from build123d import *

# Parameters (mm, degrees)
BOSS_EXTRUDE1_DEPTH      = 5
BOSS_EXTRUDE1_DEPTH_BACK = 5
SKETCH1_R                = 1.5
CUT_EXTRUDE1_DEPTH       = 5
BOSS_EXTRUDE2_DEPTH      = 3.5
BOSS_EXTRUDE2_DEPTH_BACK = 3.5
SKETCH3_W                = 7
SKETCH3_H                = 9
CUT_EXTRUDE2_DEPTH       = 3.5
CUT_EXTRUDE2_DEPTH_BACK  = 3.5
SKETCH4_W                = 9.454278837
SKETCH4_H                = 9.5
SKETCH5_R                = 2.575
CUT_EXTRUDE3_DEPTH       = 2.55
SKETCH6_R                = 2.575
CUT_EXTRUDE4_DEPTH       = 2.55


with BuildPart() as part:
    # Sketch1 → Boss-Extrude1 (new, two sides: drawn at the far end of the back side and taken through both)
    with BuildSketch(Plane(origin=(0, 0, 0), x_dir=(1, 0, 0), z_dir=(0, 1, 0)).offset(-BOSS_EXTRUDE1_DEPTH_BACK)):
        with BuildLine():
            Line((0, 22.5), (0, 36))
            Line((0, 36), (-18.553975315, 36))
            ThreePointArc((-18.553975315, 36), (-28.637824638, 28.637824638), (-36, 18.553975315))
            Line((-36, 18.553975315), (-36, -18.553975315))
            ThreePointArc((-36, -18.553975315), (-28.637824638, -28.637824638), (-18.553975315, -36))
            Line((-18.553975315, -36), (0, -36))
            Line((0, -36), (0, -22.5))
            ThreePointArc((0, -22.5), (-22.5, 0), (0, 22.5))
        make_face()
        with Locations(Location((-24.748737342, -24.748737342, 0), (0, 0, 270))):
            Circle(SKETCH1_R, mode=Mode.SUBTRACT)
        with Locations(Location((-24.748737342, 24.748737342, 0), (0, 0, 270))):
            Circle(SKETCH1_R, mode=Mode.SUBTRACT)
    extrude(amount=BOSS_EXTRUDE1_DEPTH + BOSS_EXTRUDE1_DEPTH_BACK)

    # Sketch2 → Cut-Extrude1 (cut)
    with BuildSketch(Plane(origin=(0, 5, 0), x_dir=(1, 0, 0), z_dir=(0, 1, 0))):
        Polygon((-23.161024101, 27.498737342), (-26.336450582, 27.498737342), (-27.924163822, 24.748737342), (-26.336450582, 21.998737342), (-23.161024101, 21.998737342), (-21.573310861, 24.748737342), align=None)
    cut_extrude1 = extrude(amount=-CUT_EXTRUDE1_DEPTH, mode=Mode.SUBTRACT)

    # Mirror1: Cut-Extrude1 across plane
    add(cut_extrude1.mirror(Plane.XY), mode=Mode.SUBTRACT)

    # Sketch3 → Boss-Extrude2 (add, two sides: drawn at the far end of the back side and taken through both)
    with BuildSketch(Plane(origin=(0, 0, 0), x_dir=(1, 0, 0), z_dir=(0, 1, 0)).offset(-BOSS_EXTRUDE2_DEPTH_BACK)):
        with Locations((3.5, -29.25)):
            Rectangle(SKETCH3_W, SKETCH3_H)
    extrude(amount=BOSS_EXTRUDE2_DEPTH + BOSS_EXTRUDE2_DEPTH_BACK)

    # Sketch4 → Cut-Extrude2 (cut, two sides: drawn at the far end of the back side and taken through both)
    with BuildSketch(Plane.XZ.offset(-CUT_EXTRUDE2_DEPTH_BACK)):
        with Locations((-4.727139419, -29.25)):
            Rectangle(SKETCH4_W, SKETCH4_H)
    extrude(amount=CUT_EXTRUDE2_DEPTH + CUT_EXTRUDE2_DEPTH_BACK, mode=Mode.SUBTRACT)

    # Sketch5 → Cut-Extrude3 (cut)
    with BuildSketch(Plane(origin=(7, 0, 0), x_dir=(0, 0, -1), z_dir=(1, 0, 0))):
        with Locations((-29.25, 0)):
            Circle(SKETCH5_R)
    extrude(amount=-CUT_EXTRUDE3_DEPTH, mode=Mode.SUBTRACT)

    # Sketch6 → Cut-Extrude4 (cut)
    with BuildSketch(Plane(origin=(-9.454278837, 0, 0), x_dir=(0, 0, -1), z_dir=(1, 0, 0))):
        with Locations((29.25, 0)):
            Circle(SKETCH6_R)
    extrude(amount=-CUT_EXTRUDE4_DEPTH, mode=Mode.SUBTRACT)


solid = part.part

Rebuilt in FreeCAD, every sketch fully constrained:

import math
import FreeCAD as App
import Part
import Sketcher
from FreeCAD import Vector
Q = App.Units.Quantity

doc = App.newDocument("Part")
body = doc.addObject("PartDesign::Body", "Body")

sketch1 = body.newObject("Sketcher::SketchObject", "Sketch")
sketch1.AttachmentSupport = (doc.getObject("XZ_Plane"), [""])
sketch1.MapMode = "FlatFace"
sketch1.addGeometry([
    Part.LineSegment(Vector(0, -22.5, 0), Vector(0, -36, 0)),
    Part.LineSegment(Vector(0, -36, 0), Vector(-18.6, -36, 0)),
    Part.ArcOfCircle(Part.Circle(Vector(0, 0, 0), Vector(0, 0, 1), 40.5), math.radians(-153), math.radians(-117)),
    Part.LineSegment(Vector(-36, -18.6, 0), Vector(-36, 18.6, 0)),
    Part.ArcOfCircle(Part.Circle(Vector(0, 0, 0), Vector(0, 0, 1), 40.5), math.radians(117), math.radians(153)),
    Part.LineSegment(Vector(-18.6, 36, 0), Vector(0, 36, 0)),
    Part.LineSegment(Vector(0, 36, 0), Vector(0, 22.5, 0)),
    Part.ArcOfCircle(Part.Circle(Vector(0, 0, 0), Vector(0, 0, 1), 22.5), math.radians(90), math.radians(270)),
    Part.Circle(Vector(-24.7, 24.7, 0), Vector(0, 0, 1), 1.5),
    Part.Circle(Vector(-24.7, -24.7, 0), Vector(0, 0, 1), 1.5),
], False)
sketch1.addConstraint([
    Sketcher.Constraint("Coincident", 0, 2, 1, 1),
    Sketcher.Constraint("Coincident", 1, 2, 2, 2),
    Sketcher.Constraint("Coincident", 2, 1, 3, 1),
    Sketcher.Constraint("Coincident", 3, 2, 4, 2),
    Sketcher.Constraint("Coincident", 4, 1, 5, 1),
    Sketcher.Constraint("Coincident", 5, 2, 6, 1),
    Sketcher.Constraint("Coincident", 6, 2, 7, 1),
    Sketcher.Constraint("Coincident", 7, 2, 0, 1),
    Sketcher.Constraint("Vertical", 0),
    Sketcher.Constraint("Horizontal", 1),
    Sketcher.Constraint("Vertical", 3),
    Sketcher.Constraint("Horizontal", 5),
    Sketcher.Constraint("Vertical", 6),
    Sketcher.Constraint("Coincident", 2, 3, -1, 1),
    Sketcher.Constraint("Coincident", 4, 3, -1, 1),
    Sketcher.Constraint("Coincident", 7, 3, -1, 1),
    Sketcher.Constraint("Equal", 2, 4),
    Sketcher.Constraint("Equal", 8, 9),
    Sketcher.Constraint("Symmetric", 0, 2, 5, 2, -1, 1),
    Sketcher.Constraint("Symmetric", 8, 3, 9, 3, -1),
    Sketcher.Constraint("PointOnObject", 0, 2, -2),
    Sketcher.Constraint("Diameter", 8, Q("3 mm")),
    Sketcher.Constraint("Radius", 2, Q("40.5 mm")),
    Sketcher.Constraint("Radius", 7, Q("22.5 mm")),
    Sketcher.Constraint("DistanceY", 0, 2, 0, 1, Q("13.5 mm")),
    Sketcher.Constraint("DistanceX", 2, 1, -1, 1, Q("36 mm")),
    Sketcher.Constraint("DistanceX", 8, 3, -1, 1, Q("24.748737 mm")),
    Sketcher.Constraint("DistanceY", -1, 1, 8, 3, Q("24.748737 mm")),
])
pad1 = body.newObject("PartDesign::Pad", "Pad")
pad1.Profile = sketch1
pad1.Type = "TwoLengths"
pad1.Length = 5
pad1.Length2 = 5
pad1.Reversed = True

sketch2 = body.newObject("Sketcher::SketchObject", "Sketch001")
sketch2.AttachmentSupport = (doc.getObject("XZ_Plane"), [""])
sketch2.MapMode = "FlatFace"
sketch2.AttachmentOffset = App.Placement(Vector(0, 0, -5), App.Rotation())
sketch2.addGeometry([
    Part.LineSegment(Vector(-23.2, -27.5, 0), Vector(-26.3, -27.5, 0)),
    Part.LineSegment(Vector(-26.3, -27.5, 0), Vector(-27.9, -24.7, 0)),
    Part.LineSegment(Vector(-27.9, -24.7, 0), Vector(-26.3, -22, 0)),
    Part.LineSegment(Vector(-26.3, -22, 0), Vector(-23.2, -22, 0)),
    Part.LineSegment(Vector(-23.2, -22, 0), Vector(-21.6, -24.7, 0)),
    Part.LineSegment(Vector(-21.6, -24.7, 0), Vector(-23.2, -27.5, 0)),
], False)
sketch2.addConstraint([
    Sketcher.Constraint("Coincident", 0, 2, 1, 1),
    Sketcher.Constraint("Coincident", 1, 2, 2, 1),
    Sketcher.Constraint("Coincident", 2, 2, 3, 1),
    Sketcher.Constraint("Coincident", 3, 2, 4, 1),
    Sketcher.Constraint("Coincident", 4, 2, 5, 1),
    Sketcher.Constraint("Coincident", 5, 2, 0, 1),
    Sketcher.Constraint("Horizontal", 0),
    Sketcher.Constraint("Horizontal", 3),
    Sketcher.Constraint("Parallel", 1, 4),
    Sketcher.Constraint("Parallel", 2, 5),
    Sketcher.Constraint("Horizontal", 1, 2, 4, 2),
    Sketcher.Constraint("Vertical", 0, 2, 2, 2),
    Sketcher.Constraint("Vertical", 3, 2, 5, 2),
    Sketcher.Constraint("Angle", 1, Q("120 deg")),
    Sketcher.Constraint("DistanceY", 0, 2, 2, 2, Q("5.5 mm")),
    Sketcher.Constraint("DistanceX", 0, 2, 0, 1, Q("3.175426 mm")),
    Sketcher.Constraint("DistanceX", 0, 2, -1, 1, Q("26.336451 mm")),
    Sketcher.Constraint("DistanceY", 0, 2, -1, 1, Q("27.498737 mm")),
])
pocket1 = body.newObject("PartDesign::Pocket", "Pocket")
pocket1.Profile = sketch2
pocket1.Length = 5
pocket1.Reversed = True
doc.recompute()

mirrored = body.newObject("PartDesign::Mirrored", "Mirrored")
mirrored.Originals = [pocket1]
mirrored.MirrorPlane = (doc.getObject("XY_Plane"), [""])
body.Tip = mirrored

sketch3 = body.newObject("Sketcher::SketchObject", "Sketch002")
sketch3.AttachmentSupport = (doc.getObject("XZ_Plane"), [""])
sketch3.MapMode = "FlatFace"
sketch3.addGeometry([
    Part.LineSegment(Vector(0, 25, 0), Vector(0, 34, 0)),
    Part.LineSegment(Vector(0, 34, 0), Vector(7, 34, 0)),
    Part.LineSegment(Vector(7, 34, 0), Vector(7, 25, 0)),
    Part.LineSegment(Vector(7, 25, 0), Vector(0, 25, 0)),
], False)
sketch3.addConstraint([
    Sketcher.Constraint("Coincident", 0, 2, 1, 1),
    Sketcher.Constraint("Coincident", 1, 2, 2, 1),
    Sketcher.Constraint("Coincident", 2, 2, 3, 1),
    Sketcher.Constraint("Coincident", 3, 2, 0, 1),
    Sketcher.Constraint("Vertical", 0),
    Sketcher.Constraint("Horizontal", 1),
    Sketcher.Constraint("Vertical", 2),
    Sketcher.Constraint("Horizontal", 3),
    Sketcher.Constraint("PointOnObject", 0, 2, -2),
    Sketcher.Constraint("DistanceX", 1, 1, 1, 2, Q("7 mm")),
    Sketcher.Constraint("DistanceY", 0, 1, 0, 2, Q("9 mm")),
    Sketcher.Constraint("DistanceY", -1, 1, 0, 2, Q("33.75 mm")),
])
pad2 = body.newObject("PartDesign::Pad", "Pad001")
pad2.Profile = sketch3
pad2.Type = "TwoLengths"
pad2.Length = 3.5
pad2.Length2 = 3.5
pad2.Reversed = True

sketch4 = body.newObject("Sketcher::SketchObject", "Sketch003")
sketch4.AttachmentSupport = (doc.getObject("XZ_Plane"), [""])
sketch4.MapMode = "FlatFace"
sketch4.addGeometry([
    Part.LineSegment(Vector(-9, -24, 0), Vector(-9, -34, 0)),
    Part.LineSegment(Vector(-9, -34, 0), Vector(0, -34, 0)),
    Part.LineSegment(Vector(0, -34, 0), Vector(0, -24, 0)),
    Part.LineSegment(Vector(0, -24, 0), Vector(-9, -24, 0)),
], False)
sketch4.addConstraint([
    Sketcher.Constraint("Coincident", 0, 2, 1, 1),
    Sketcher.Constraint("Coincident", 1, 2, 2, 1),
    Sketcher.Constraint("Coincident", 2, 2, 3, 1),
    Sketcher.Constraint("Coincident", 3, 2, 0, 1),
    Sketcher.Constraint("Vertical", 0),
    Sketcher.Constraint("Horizontal", 1),
    Sketcher.Constraint("Vertical", 2),
    Sketcher.Constraint("Horizontal", 3),
    Sketcher.Constraint("PointOnObject", 1, 2, -2),
    Sketcher.Constraint("DistanceY", 0, 2, 0, 1, Q("9.5 mm")),
    Sketcher.Constraint("DistanceY", 0, 2, -1, 1, Q("34 mm")),
    Sketcher.Constraint("DistanceX", 1, 1, 1, 2, Q("9.454279 mm")),
])
pocket2 = body.newObject("PartDesign::Pocket", "Pocket001")
pocket2.Profile = sketch4
pocket2.Type = "TwoLengths"
pocket2.Length = 3.5
pocket2.Length2 = 3.5
pocket2.Reversed = True

sketch5 = body.newObject("Sketcher::SketchObject", "Sketch004")
sketch5.AttachmentSupport = (doc.getObject("YZ_Plane"), [""])
sketch5.MapMode = "FlatFace"
sketch5.AttachmentOffset = App.Placement(Vector(0, 0, 7), App.Rotation())
sketch5.addGeometry(Part.Circle(Vector(0, 29.2, 0), Vector(0, 0, 1), 2.6), False)
sketch5.addConstraint([
    Sketcher.Constraint("PointOnObject", 0, 3, -2),
    Sketcher.Constraint("Diameter", 0, Q("5.15 mm")),
    Sketcher.Constraint("DistanceY", -1, 1, 0, 3, Q("29.25 mm")),
])
pocket3 = body.newObject("PartDesign::Pocket", "Pocket002")
pocket3.Profile = sketch5
pocket3.Length = 2.55

sketch6 = body.newObject("Sketcher::SketchObject", "Sketch005")
sketch6.AttachmentSupport = (doc.getObject("YZ_Plane"), [""])
sketch6.MapMode = "FlatFace"
sketch6.AttachmentOffset = App.Placement(Vector(0, 0, -9.454279), App.Rotation())
sketch6.addGeometry(Part.Circle(Vector(0, -29.2, 0), Vector(0, 0, 1), 2.6), False)
sketch6.addConstraint([
    Sketcher.Constraint("PointOnObject", 0, 3, -2),
    Sketcher.Constraint("Diameter", 0, Q("5.15 mm")),
    Sketcher.Constraint("DistanceY", 0, 3, -1, 1, Q("29.25 mm")),
])
pocket4 = body.newObject("PartDesign::Pocket", "Pocket003")
pocket4.Profile = sketch6
pocket4.Length = 2.55

doc.recompute()
